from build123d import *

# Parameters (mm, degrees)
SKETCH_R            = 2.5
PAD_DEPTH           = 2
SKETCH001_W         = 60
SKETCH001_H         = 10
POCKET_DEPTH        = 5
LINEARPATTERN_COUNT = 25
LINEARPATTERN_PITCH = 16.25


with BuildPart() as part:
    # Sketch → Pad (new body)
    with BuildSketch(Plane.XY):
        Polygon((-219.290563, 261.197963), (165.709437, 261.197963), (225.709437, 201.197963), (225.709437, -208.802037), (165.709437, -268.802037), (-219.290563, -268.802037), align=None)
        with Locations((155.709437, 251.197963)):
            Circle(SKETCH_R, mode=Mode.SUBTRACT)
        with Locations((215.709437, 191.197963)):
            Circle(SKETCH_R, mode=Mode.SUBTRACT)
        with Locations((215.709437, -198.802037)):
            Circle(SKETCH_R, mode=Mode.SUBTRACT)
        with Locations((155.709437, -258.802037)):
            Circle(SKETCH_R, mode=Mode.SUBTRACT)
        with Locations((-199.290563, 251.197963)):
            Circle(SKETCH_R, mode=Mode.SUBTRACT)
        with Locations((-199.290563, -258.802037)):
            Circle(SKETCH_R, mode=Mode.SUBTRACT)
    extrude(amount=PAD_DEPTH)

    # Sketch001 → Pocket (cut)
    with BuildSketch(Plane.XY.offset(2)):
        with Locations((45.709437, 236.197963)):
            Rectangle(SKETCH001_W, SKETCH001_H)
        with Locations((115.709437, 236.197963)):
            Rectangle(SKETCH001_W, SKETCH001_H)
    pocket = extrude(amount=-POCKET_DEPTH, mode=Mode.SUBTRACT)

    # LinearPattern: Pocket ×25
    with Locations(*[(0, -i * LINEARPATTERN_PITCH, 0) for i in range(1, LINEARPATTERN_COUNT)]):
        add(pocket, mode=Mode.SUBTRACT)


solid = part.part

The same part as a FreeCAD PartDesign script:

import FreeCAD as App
import Part
import Sketcher

V = App.Vector
Q = App.Units.Quantity

doc = App.newDocument("Part")
body = doc.addObject("PartDesign::Body", "Body")

# Sketch on XY plane
sketch1 = body.newObject("Sketcher::SketchObject", "Sketch")
sketch1.AttachmentSupport = (doc.getObject("XY_Plane"), [""])
sketch1.MapMode = "FlatFace"
sketch1.addGeometry([
    Part.LineSegment(V(165.7, 261.2, 0), V(-219.3, 261.2, 0)),  # 0
    Part.LineSegment(V(-219.3, 261.2, 0), V(-219.3, -268.8, 0)),  # 1
    Part.LineSegment(V(-219.3, -268.8, 0), V(165.7, -268.8, 0)),  # 2
    Part.LineSegment(V(165.7, -268.8, 0), V(225.7, -208.8, 0)),  # 3
    Part.LineSegment(V(225.7, -208.8, 0), V(225.7, 201.2, 0)),  # 4
    Part.LineSegment(V(225.7, 201.2, 0), V(165.7, 261.2, 0)),  # 5
    Part.Circle(V(215.7, -198.8, 0), V(0, 0, 1), 2.5),  # 6
    Part.Circle(V(155.7, -258.8, 0), V(0, 0, 1), 2.5),  # 7
    Part.Circle(V(-199.3, -258.8, 0), V(0, 0, 1), 2.5),  # 8
    Part.Circle(V(215.7, 191.2, 0), V(0, 0, 1), 2.5),  # 9
    Part.Circle(V(155.7, 251.2, 0), V(0, 0, 1), 2.5),  # 10
    Part.Circle(V(-199.3, 251.2, 0), V(0, 0, 1), 2.5),  # 11
], False)
sketch1.addConstraint([
    Sketcher.Constraint("Coincident", 0, 2, 1, 1),
    Sketcher.Constraint("Coincident", 1, 2, 2, 1),
    Sketcher.Constraint("Coincident", 2, 2, 3, 1),
    Sketcher.Constraint("Coincident", 3, 2, 4, 1),
    Sketcher.Constraint("Coincident", 4, 2, 5, 1),
    Sketcher.Constraint("Coincident", 5, 2, 0, 1),
    Sketcher.Constraint("Horizontal", 0),
    Sketcher.Constraint("Vertical", 1),
    Sketcher.Constraint("Horizontal", 2),
    Sketcher.Constraint("Vertical", 4),
    Sketcher.Constraint("Equal", 6, 7),
    Sketcher.Constraint("Equal", 7, 8),
    Sketcher.Constraint("Equal", 8, 9),
    Sketcher.Constraint("Equal", 9, 10),
    Sketcher.Constraint("Equal", 10, 11),
    Sketcher.Constraint("Perpendicular", 3, 5),
    Sketcher.Constraint("Horizontal", 7, 3, 8, 3),
    Sketcher.Constraint("Horizontal", 10, 3, 11, 3),
    Sketcher.Constraint("Vertical", 6, 3, 9, 3),
    Sketcher.Constraint("Vertical", 7, 3, 10, 3),
    Sketcher.Constraint("Vertical", 8, 3, 11, 3),
    Sketcher.Constraint("Vertical", 2, 2, 5, 2),
    Sketcher.Constraint("Equal", 3, 5),
    Sketcher.Constraint("Diameter", 6, Q("5 mm")),
    Sketcher.Constraint("DistanceX", 0, 2, 0, 1, Q("385 mm")),
    Sketcher.Constraint("DistanceY", 1, 2, 1, 1, Q("530 mm")),
    Sketcher.Constraint("DistanceY", 4, 1, 4, 2, Q("410 mm")),
    Sketcher.Constraint("DistanceX", 7, 3, 6, 3, Q("60 mm")),
    Sketcher.Constraint("DistanceY", 7, 3, 6, 3, Q("60 mm")),
    Sketcher.Constraint("DistanceX", 8, 3, 7, 3, Q("355 mm")),
    Sketcher.Constraint("DistanceY", 6, 3, 9, 3, Q("390 mm")),
    Sketcher.Constraint("DistanceY", 9, 3, 10, 3, Q("60 mm")),
    Sketcher.Constraint("DistanceX", 0, 2, 11, 3, Q("20 mm")),
    Sketcher.Constraint("DistanceY", 11, 3, 0, 2, Q("10 mm")),
    Sketcher.Constraint("DistanceX", -1, 1, 6, 3, Q("215.709437 mm")),
    Sketcher.Constraint("DistanceY", 6, 3, -1, 1, Q("198.802037 mm")),
])
pad1 = body.newObject("PartDesign::Pad", "Pad")
pad1.Profile = sketch1
pad1.Length = 2

# Sketch on XY plane
sketch2 = body.newObject("Sketcher::SketchObject", "Sketch001")
sketch2.AttachmentSupport = (doc.getObject("XY_Plane"), [""])
sketch2.MapMode = "FlatFace"
sketch2.AttachmentOffset = App.Placement(V(0, 0, 2), App.Rotation())
sketch2.addGeometry([
    Part.LineSegment(V(16, 241, 0), V(16, 231, 0)),  # 0
    Part.LineSegment(V(16, 231, 0), V(76, 231, 0)),  # 1
    Part.LineSegment(V(76, 231, 0), V(76, 241, 0)),  # 2
    Part.LineSegment(V(76, 241, 0), V(16, 241, 0)),  # 3
    Part.LineSegment(V(86, 241, 0), V(86, 231, 0)),  # 4
    Part.LineSegment(V(86, 231, 0), V(146, 231, 0)),  # 5
    Part.LineSegment(V(146, 231, 0), V(146, 241, 0)),  # 6
    Part.LineSegment(V(146, 241, 0), V(86, 241, 0)),  # 7
], False)
sketch2.addConstraint([
    Sketcher.Constraint("Coincident", 0, 2, 1, 1),
    Sketcher.Constraint("Coincident", 1, 2, 2, 1),
    Sketcher.Constraint("Coincident", 2, 2, 3, 1),
    Sketcher.Constraint("Coincident", 3, 2, 0, 1),
    Sketcher.Constraint("Coincident", 4, 2, 5, 1),
    Sketcher.Constraint("Coincident", 5, 2, 6, 1),
    Sketcher.Constraint("Coincident", 6, 2, 7, 1),
    Sketcher.Constraint("Coincident", 7, 2, 4, 1),
    Sketcher.Constraint("Vertical", 0),
    Sketcher.Constraint("Horizontal", 1),
    Sketcher.Constraint("Vertical", 2),
    Sketcher.Constraint("Horizontal", 3),
    Sketcher.Constraint("Vertical", 4),
    Sketcher.Constraint("Horizontal", 5),
    Sketcher.Constraint("Vertical", 6),
    Sketcher.Constraint("Horizontal", 7),
    Sketcher.Constraint("Horizontal", 1, 2, 4, 2),
    Sketcher.Constraint("Horizontal", 3, 2, 6, 2),
    Sketcher.Constraint("Equal", 3, 5),
    Sketcher.Constraint("DistanceX", 1, 1, 1, 2, Q("60 mm")),
    Sketcher.Constraint("DistanceY", 0, 2, 0, 1, Q("10 mm")),
    Sketcher.Constraint("DistanceX", 1, 2, 4, 2, Q("10 mm")),
    Sketcher.Constraint("DistanceX", -1, 1, 0, 2, Q("15.709437 mm")),
    Sketcher.Constraint("DistanceY", -1, 1, 0, 2, Q("231.197963 mm")),
])
pocket1 = body.newObject("PartDesign::Pocket", "Pocket")
pocket1.Profile = sketch2
pocket1.Length = 5
doc.recompute()

linearpattern = body.newObject("PartDesign::LinearPattern", "LinearPattern")
linearpattern.Originals = [pocket1]
linearpattern.Direction = (doc.getObject("Y_Axis"), [""])
linearpattern.Mode = "offset"
linearpattern.Offset = 16.25
linearpattern.Occurrences = 25
linearpattern.Reversed = True
body.Tip = linearpattern

doc.recompute()
